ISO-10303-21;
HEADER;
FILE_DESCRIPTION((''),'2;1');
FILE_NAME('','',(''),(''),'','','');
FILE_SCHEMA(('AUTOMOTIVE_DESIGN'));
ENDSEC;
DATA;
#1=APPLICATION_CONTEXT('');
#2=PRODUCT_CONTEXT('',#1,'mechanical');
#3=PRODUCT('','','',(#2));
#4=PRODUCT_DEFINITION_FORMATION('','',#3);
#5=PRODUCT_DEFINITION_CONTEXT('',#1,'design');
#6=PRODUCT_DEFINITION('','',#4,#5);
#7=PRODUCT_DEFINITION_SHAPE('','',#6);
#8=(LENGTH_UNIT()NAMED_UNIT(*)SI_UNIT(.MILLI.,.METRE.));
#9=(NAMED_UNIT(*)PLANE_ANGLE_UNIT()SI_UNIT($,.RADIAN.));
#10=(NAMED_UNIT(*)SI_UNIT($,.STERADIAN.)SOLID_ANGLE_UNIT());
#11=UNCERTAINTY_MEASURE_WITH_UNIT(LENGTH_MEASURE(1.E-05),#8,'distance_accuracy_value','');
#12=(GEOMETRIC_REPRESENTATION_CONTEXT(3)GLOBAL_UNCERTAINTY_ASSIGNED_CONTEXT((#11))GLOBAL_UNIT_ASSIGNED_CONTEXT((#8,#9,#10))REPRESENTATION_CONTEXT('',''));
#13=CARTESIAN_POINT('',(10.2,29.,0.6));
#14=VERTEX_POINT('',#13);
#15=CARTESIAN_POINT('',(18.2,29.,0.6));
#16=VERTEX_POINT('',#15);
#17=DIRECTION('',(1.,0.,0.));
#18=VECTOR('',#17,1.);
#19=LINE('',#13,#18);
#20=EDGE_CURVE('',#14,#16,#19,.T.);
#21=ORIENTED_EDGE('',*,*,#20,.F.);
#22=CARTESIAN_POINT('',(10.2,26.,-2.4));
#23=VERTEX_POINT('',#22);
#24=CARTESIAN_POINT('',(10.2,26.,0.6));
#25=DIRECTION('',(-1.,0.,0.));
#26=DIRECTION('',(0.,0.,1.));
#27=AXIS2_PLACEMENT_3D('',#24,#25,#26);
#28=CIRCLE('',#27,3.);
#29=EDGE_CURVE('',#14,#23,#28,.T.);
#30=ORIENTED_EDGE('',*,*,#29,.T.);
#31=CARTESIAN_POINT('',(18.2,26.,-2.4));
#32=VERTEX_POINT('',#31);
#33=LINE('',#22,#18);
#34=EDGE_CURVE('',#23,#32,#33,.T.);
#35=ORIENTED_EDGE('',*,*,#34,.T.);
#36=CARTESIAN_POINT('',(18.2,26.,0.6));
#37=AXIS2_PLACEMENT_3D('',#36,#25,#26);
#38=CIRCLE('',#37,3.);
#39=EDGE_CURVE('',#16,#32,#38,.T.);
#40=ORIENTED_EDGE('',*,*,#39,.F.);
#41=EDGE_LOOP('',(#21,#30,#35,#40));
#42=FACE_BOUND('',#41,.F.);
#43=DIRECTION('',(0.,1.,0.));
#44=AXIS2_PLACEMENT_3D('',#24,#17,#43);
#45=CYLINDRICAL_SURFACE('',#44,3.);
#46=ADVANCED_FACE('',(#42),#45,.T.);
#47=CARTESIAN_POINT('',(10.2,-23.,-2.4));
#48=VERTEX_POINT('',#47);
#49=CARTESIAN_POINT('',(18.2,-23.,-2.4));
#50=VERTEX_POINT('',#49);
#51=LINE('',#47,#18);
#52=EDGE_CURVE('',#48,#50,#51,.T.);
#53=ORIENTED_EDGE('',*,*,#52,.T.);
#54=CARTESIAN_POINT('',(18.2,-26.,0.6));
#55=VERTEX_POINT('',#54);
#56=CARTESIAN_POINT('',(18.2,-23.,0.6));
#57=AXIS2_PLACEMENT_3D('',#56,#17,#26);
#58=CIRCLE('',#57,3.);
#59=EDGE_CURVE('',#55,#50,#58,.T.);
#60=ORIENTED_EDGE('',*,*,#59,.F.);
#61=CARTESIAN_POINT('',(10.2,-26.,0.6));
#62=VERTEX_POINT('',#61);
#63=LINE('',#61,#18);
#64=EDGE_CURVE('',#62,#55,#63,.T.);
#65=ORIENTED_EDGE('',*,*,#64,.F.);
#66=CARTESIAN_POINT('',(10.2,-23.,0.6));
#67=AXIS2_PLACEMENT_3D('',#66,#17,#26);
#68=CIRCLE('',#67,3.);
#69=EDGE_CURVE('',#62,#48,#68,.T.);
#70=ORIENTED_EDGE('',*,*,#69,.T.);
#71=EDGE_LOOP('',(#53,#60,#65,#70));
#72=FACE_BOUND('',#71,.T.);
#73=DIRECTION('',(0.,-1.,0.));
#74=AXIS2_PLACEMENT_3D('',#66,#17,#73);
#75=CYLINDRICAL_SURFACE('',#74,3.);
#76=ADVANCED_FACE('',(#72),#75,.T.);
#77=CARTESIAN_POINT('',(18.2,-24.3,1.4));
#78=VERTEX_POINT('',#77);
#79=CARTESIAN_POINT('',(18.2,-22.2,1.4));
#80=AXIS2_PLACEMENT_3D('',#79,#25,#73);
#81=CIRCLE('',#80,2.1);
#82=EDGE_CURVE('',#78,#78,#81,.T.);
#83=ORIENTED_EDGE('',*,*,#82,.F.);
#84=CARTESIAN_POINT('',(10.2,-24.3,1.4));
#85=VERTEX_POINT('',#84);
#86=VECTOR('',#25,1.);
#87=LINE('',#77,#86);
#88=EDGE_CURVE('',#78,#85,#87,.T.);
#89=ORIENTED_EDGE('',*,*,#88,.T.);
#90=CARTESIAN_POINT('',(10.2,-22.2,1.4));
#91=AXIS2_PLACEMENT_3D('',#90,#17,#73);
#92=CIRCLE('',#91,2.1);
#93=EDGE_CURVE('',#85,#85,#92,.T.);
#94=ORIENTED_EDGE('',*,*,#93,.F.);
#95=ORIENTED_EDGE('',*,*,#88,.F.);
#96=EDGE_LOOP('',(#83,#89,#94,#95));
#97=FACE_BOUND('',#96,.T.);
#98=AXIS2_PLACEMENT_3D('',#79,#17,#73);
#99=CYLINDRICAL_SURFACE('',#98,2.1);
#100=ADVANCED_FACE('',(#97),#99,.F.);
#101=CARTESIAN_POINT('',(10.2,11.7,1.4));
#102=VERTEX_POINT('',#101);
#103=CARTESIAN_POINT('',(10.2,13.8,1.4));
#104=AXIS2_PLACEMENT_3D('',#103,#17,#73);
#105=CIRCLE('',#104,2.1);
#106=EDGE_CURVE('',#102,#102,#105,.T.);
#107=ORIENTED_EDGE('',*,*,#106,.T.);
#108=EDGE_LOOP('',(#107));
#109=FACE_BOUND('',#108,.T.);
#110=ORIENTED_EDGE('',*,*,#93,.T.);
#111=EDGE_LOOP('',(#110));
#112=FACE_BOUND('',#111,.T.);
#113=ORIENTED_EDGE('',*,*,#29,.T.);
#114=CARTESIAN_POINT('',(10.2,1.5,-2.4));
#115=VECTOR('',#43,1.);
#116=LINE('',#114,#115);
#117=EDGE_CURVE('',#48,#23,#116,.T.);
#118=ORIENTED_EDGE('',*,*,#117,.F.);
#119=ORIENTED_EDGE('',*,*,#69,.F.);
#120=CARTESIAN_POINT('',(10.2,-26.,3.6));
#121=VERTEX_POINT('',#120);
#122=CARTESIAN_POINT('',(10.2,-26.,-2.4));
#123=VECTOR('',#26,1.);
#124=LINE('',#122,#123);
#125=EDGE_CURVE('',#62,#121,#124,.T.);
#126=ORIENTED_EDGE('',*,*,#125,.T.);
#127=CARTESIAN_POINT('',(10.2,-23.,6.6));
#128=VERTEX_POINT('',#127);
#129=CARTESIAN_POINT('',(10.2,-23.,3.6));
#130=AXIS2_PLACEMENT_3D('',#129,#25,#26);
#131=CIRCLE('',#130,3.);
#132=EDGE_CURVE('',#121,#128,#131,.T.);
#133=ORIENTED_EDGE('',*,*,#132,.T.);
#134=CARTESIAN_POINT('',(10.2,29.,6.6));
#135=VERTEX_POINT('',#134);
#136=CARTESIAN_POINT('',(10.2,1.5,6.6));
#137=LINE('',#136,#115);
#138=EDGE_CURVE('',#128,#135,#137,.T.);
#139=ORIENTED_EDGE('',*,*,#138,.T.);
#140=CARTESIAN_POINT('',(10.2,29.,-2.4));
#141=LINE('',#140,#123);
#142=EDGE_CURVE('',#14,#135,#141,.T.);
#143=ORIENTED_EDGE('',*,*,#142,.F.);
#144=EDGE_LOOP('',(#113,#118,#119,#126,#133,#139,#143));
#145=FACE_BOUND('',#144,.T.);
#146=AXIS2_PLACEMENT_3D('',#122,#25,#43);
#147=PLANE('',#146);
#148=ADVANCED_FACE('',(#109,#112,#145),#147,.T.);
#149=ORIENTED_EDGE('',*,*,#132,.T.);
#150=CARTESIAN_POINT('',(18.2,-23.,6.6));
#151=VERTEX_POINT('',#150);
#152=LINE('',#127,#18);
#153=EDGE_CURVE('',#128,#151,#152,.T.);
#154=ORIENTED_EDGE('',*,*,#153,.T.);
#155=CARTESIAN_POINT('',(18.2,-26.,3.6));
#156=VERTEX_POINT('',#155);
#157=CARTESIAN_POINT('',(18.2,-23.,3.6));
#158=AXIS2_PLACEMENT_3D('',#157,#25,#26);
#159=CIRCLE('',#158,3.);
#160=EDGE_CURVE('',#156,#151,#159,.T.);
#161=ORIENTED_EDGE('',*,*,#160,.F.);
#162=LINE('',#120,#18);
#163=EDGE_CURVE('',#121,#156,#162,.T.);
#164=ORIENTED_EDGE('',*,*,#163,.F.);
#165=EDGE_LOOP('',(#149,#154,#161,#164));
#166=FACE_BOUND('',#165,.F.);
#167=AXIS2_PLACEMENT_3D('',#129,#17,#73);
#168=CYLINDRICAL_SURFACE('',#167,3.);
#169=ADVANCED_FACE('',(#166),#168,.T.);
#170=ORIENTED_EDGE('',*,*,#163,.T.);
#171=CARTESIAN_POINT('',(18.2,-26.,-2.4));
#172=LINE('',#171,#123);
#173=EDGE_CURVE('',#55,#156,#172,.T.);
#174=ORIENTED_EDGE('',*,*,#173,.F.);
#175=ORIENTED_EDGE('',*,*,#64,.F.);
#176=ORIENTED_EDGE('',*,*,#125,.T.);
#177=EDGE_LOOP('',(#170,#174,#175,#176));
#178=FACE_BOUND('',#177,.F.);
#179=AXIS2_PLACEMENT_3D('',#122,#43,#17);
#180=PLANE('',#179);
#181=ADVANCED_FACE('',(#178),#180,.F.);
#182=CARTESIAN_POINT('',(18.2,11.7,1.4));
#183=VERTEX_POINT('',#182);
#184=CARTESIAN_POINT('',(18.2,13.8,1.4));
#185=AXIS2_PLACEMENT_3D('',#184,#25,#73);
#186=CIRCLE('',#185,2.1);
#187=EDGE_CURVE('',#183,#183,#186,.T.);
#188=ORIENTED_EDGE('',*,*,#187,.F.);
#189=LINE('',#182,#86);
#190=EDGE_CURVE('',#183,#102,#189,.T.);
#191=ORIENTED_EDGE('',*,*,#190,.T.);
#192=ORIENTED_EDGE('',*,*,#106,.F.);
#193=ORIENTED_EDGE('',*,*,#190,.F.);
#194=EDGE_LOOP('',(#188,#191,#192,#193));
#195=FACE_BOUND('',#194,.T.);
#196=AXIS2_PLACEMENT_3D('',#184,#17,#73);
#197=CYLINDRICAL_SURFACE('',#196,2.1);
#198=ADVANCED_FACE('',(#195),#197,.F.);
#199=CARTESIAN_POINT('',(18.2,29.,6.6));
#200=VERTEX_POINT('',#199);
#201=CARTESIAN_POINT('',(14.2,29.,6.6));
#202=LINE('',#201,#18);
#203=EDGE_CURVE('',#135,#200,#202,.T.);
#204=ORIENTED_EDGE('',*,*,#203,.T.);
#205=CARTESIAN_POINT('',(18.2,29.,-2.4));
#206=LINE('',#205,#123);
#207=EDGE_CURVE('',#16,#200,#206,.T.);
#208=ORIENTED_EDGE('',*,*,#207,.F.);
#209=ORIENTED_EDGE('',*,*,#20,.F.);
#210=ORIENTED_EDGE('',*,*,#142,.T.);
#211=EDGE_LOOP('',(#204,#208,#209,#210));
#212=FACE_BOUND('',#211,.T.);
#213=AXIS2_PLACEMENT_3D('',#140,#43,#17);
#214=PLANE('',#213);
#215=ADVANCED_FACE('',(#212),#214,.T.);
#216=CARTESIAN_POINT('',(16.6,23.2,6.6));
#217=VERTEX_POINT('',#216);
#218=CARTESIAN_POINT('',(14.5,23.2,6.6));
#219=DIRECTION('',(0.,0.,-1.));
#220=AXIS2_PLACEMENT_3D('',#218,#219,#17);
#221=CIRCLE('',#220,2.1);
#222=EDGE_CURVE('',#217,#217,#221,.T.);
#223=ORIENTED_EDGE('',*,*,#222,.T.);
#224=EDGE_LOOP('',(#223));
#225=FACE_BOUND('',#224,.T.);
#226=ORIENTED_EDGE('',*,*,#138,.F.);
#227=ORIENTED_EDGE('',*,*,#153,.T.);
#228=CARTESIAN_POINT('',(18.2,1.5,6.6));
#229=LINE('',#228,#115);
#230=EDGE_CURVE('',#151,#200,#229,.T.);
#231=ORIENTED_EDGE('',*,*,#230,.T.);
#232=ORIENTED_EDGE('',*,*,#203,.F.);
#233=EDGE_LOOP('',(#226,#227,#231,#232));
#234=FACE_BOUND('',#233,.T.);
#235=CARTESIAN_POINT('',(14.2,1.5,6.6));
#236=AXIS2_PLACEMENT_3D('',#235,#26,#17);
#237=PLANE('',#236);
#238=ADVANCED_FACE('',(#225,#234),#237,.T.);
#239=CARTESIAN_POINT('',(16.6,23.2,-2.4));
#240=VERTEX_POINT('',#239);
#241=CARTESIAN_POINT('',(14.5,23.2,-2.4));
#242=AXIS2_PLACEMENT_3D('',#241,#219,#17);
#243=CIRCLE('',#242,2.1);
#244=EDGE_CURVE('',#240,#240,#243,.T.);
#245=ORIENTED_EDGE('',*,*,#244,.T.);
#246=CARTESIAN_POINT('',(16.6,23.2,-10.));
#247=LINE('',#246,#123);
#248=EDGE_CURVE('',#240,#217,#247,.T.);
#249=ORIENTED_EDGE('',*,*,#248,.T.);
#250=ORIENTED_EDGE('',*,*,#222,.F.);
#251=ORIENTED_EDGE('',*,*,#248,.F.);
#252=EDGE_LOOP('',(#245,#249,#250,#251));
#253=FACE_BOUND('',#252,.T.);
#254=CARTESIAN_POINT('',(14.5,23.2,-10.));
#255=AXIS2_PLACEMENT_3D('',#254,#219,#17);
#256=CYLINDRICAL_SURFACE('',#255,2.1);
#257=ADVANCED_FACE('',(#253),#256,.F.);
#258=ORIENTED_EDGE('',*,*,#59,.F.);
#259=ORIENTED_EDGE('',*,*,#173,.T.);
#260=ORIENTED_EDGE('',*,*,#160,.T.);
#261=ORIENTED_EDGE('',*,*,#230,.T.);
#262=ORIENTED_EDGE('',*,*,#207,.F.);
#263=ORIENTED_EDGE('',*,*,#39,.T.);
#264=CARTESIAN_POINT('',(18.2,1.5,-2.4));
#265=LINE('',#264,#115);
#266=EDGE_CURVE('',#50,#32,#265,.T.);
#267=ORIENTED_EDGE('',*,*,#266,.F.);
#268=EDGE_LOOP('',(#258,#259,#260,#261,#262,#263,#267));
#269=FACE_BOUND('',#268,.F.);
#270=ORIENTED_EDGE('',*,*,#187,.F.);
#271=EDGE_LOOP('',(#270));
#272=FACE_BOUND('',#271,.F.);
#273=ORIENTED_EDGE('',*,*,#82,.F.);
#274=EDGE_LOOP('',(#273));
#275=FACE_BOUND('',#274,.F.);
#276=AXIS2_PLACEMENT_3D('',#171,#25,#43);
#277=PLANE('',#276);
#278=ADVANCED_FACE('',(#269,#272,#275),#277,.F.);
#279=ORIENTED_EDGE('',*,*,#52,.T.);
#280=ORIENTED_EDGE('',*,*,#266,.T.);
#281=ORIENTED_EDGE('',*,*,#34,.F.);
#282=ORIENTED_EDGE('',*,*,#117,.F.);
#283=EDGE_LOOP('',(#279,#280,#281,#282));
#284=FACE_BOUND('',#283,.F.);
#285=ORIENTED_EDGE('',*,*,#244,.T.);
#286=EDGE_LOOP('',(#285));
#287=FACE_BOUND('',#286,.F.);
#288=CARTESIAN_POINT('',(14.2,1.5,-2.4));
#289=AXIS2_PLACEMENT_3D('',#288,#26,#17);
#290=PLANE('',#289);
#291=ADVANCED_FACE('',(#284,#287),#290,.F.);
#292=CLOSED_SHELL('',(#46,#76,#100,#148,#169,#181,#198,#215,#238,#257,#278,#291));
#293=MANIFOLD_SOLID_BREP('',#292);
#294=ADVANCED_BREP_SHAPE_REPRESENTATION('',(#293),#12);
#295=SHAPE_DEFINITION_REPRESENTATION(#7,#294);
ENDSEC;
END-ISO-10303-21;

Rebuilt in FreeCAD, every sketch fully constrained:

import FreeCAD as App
import Part
import Sketcher

V = App.Vector
Q = App.Units.Quantity


def edges_at(feature, points):
    """Names of the edges that pass closest to the given points."""
    edges = feature.Shape.Edges
    near = lambda p: min(range(len(edges)), key=lambda i: edges[i].distToShape(Part.Vertex(*p))[0])
    return sorted({f"Edge{near(p) + 1}" for p in points})

doc = App.newDocument("Part")
body = doc.addObject("PartDesign::Body", "Body")

sketch1 = body.newObject("Sketcher::SketchObject", "Sketch")
sketch1.AttachmentSupport = (doc.getObject("XY_Plane"), [""])
sketch1.MapMode = "FlatFace"
sketch1.AttachmentOffset = App.Placement(V(0, 0, -10), App.Rotation())
sketch1.addGeometry(Part.Circle(V(14.5, 23.2, 0), V(0, 0, 1), 2.1), False)
sketch1.addConstraint(Sketcher.Constraint("Diameter", 0, Q("4.2 mm")))
sketch1.addConstraint(Sketcher.Constraint("DistanceX", -1, 1, 0, 3, Q("14.5 mm")))
sketch1.addConstraint(Sketcher.Constraint("DistanceY", -1, 1, 0, 3, Q("23.2 mm")))
pad1 = body.newObject("PartDesign::Pad", "Pad")
pad1.Profile = sketch1
pad1.Length = 20
body2 = doc.addObject("PartDesign::Body", "Body001")
body2.AllowCompound = True

sketch2 = body2.newObject("Sketcher::SketchObject", "Sketch001")
sketch2.AttachmentSupport = (doc.getObject("YZ_Plane001"), [""])
sketch2.MapMode = "FlatFace"
sketch2.AttachmentOffset = App.Placement(V(0, 0, 18.2), App.Rotation())
sketch2.addGeometry(Part.Circle(V(13.8, 1.4, 0), V(0, 0, 1), 2.1), False)
sketch2.addGeometry(Part.Circle(V(-22.2, 1.4, 0), V(0, 0, 1), 2.1), False)
sketch2.addConstraint(Sketcher.Constraint("Equal", 0, 1))
sketch2.addConstraint(Sketcher.Constraint("Horizontal", 0, 3, 1, 3))
sketch2.addConstraint(Sketcher.Constraint("Diameter", 0, Q("4.2 mm")))
sketch2.addConstraint(Sketcher.Constraint("DistanceX", 1, 3, 0, 3, Q("36 mm")))
sketch2.addConstraint(Sketcher.Constraint("DistanceX", -1, 1, 0, 3, Q("13.8 mm")))
sketch2.addConstraint(Sketcher.Constraint("DistanceY", -1, 1, 0, 3, Q("1.4 mm")))
pad2 = body2.newObject("PartDesign::Pad", "Pad001")
pad2.Profile = sketch2
pad2.Length = 10
pad2.Reversed = True
doc.recompute()

boolean = body2.newObject("PartDesign::Boolean", "Boolean")
boolean.Type = "Fuse"
boolean.addObjects([body])
body3 = doc.addObject("PartDesign::Body", "Body002")

sketch3 = body3.newObject("Sketcher::SketchObject", "Sketch002")
sketch3.AttachmentSupport = (doc.getObject("XY_Plane002"), [""])
sketch3.MapMode = "FlatFace"
sketch3.AttachmentOffset = App.Placement(V(0, 0, -2.4), App.Rotation())
sketch3.addGeometry(Part.LineSegment(V(10, 29, 0), V(10, -26, 0)), False)
sketch3.addGeometry(Part.LineSegment(V(10, -26, 0), V(18, -26, 0)), False)
sketch3.addGeometry(Part.LineSegment(V(18, -26, 0), V(18, 29, 0)), False)
sketch3.addGeometry(Part.LineSegment(V(18, 29, 0), V(10, 29, 0)), False)
sketch3.addConstraint(Sketcher.Constraint("Coincident", 0, 2, 1, 1))
sketch3.addConstraint(Sketcher.Constraint("Coincident", 1, 2, 2, 1))
sketch3.addConstraint(Sketcher.Constraint("Coincident", 2, 2, 3, 1))
sketch3.addConstraint(Sketcher.Constraint("Coincident", 3, 2, 0, 1))
sketch3.addConstraint(Sketcher.Constraint("Vertical", 0))
sketch3.addConstraint(Sketcher.Constraint("Horizontal", 1))
sketch3.addConstraint(Sketcher.Constraint("Vertical", 2))
sketch3.addConstraint(Sketcher.Constraint("Horizontal", 3))
sketch3.addConstraint(Sketcher.Constraint("DistanceX", 1, 1, 1, 2, Q("8 mm")))
sketch3.addConstraint(Sketcher.Constraint("DistanceY", 0, 2, 0, 1, Q("55 mm")))
sketch3.addConstraint(Sketcher.Constraint("DistanceY", 0, 2, -1, 1, Q("26 mm")))
sketch3.addConstraint(Sketcher.Constraint("DistanceX", -1, 1, 0, 2, Q("10.2 mm")))
pad3 = body3.newObject("PartDesign::Pad", "Pad002")
pad3.Profile = sketch3
pad3.Length = 9
doc.recompute()

fillet = body3.newObject("PartDesign::Fillet", "Fillet")
fillet.Base = (pad3, edges_at(pad3, [(14.2, -26, -2.4), (14.2, -26, 6.6), (14.2, 29, -2.4)]))
fillet.Radius = 3
doc.recompute()

boolean2 = body3.newObject("PartDesign::Boolean", "Boolean001")
boolean2.Type = "Cut"
boolean2.addObjects([body2])

doc.recompute()
